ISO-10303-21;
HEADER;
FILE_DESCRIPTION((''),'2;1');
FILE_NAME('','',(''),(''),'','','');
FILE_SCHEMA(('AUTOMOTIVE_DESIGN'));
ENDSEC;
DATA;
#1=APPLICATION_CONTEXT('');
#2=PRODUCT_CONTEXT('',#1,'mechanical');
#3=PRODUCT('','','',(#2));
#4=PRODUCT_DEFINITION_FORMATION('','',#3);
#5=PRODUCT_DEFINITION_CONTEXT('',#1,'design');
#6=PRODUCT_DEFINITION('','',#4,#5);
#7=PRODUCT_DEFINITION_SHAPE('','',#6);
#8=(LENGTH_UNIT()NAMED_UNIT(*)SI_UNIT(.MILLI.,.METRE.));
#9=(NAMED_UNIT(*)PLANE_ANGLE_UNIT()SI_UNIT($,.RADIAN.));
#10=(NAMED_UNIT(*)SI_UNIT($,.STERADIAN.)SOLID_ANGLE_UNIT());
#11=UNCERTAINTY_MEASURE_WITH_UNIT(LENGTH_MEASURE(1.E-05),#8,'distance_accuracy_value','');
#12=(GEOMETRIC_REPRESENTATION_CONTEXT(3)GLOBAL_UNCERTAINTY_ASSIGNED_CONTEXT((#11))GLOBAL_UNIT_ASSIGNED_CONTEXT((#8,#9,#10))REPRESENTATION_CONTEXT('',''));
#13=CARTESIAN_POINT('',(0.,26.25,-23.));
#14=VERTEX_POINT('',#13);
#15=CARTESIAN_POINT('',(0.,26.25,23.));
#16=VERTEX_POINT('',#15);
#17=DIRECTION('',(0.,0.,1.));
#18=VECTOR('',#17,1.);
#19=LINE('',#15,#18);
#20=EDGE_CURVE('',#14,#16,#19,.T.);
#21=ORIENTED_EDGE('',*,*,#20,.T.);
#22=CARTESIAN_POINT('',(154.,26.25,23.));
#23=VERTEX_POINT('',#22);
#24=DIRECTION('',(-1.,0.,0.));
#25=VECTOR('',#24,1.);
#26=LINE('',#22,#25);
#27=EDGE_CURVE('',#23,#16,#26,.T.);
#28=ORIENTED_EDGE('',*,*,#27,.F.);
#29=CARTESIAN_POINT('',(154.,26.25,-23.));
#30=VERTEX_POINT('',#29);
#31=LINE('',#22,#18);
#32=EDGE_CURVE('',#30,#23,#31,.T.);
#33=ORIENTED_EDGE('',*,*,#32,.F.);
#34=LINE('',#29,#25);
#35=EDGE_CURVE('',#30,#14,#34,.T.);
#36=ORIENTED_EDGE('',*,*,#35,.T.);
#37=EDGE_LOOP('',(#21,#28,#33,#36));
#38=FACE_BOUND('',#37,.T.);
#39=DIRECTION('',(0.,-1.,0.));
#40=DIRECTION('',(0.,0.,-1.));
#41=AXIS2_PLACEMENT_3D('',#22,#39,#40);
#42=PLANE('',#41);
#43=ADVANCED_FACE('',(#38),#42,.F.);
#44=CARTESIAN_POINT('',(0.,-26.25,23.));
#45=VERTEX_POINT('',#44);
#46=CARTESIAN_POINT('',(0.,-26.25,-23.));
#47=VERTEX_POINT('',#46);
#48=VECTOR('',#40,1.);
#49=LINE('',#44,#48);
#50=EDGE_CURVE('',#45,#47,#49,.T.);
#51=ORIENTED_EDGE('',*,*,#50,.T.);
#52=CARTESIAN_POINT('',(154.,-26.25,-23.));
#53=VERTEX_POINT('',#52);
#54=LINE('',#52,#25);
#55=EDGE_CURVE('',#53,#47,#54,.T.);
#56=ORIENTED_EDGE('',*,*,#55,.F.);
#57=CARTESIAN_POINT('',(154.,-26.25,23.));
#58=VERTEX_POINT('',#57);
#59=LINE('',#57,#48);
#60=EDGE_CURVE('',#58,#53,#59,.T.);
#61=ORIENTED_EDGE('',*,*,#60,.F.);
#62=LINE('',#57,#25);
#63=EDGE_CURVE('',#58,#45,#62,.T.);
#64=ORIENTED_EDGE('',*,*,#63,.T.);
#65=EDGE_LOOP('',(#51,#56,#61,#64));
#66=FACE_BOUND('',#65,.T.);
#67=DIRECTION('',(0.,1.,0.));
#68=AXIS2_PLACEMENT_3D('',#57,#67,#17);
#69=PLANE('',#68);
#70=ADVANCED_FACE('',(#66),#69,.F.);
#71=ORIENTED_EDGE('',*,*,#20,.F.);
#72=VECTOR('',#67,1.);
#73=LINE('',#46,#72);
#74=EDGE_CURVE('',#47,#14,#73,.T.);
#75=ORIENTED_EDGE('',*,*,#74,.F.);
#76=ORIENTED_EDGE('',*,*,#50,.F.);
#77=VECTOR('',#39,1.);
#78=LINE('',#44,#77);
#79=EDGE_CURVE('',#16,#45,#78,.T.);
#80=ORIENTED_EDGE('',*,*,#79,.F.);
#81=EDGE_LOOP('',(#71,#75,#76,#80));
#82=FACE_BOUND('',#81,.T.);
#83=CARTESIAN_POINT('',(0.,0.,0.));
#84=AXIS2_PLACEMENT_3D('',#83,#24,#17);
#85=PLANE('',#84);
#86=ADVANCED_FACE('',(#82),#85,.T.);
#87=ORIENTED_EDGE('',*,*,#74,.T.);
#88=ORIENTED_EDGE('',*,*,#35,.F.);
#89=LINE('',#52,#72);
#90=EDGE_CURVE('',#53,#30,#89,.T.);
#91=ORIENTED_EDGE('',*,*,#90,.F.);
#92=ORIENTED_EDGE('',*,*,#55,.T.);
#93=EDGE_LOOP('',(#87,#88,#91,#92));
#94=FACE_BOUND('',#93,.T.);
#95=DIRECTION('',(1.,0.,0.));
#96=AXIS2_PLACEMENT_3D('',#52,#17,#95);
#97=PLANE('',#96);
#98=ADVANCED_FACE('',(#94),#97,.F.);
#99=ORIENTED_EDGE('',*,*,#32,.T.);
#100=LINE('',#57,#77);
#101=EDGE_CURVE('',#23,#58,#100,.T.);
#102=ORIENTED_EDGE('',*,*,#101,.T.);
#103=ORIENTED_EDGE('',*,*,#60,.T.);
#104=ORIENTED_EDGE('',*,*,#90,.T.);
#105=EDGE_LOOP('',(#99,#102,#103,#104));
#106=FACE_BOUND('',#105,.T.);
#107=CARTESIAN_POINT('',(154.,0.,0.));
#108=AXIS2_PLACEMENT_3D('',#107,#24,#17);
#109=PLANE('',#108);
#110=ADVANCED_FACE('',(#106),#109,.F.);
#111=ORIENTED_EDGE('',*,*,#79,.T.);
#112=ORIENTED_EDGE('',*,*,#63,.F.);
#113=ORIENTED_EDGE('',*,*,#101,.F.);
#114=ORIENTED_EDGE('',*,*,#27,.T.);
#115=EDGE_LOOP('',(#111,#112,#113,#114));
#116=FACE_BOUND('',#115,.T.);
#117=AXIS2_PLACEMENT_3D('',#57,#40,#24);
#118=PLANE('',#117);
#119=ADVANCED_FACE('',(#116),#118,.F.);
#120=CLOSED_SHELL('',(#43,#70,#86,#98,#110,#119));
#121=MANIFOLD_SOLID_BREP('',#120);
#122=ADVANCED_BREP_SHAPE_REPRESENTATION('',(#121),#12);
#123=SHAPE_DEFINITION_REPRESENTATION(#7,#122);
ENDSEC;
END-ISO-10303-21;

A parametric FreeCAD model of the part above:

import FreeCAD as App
import Part
import Sketcher

V = App.Vector

doc = App.newDocument("Part")
body = doc.addObject("PartDesign::Body", "Body")

# Sketch on YZ plane
sketch1 = doc.addObject("Sketcher::SketchObject", "Sketch")
body.addObject(sketch1)
sketch1.AttachmentSupport = (doc.YZ_Plane, [""])
sketch1.MapMode = "FlatFace"
sketch1.addGeometry([
    Part.LineSegment(V(26, 23, 0), V(-26, 23, 0)),
    Part.LineSegment(V(-26, 23, 0), V(-26, -23, 0)),
    Part.LineSegment(V(-26, -23, 0), V(26, -23, 0)),
    Part.LineSegment(V(26, -23, 0), V(26, 23, 0)),
], False)
sketch1.addConstraint([
    Sketcher.Constraint("Coincident", 0, 2, 1, 1),
    Sketcher.Constraint("Coincident", 1, 2, 2, 1),
    Sketcher.Constraint("Coincident", 2, 2, 3, 1),
    Sketcher.Constraint("Coincident", 3, 2, 0, 1),
    Sketcher.Constraint("Horizontal", 0),
    Sketcher.Constraint("Vertical", 1),
    Sketcher.Constraint("Horizontal", 2),
    Sketcher.Constraint("Vertical", 3),
    Sketcher.Constraint("Symmetric", 0, 2, 2, 2, -1, 1),
    Sketcher.Constraint("DistanceY", 1, 2, 1, 1, 46.0),
    Sketcher.Constraint("DistanceX", 0, 2, 0, 1, 52.5),
])
pad1 = doc.addObject("PartDesign::Pad", "Pad")
body.addObject(pad1)
pad1.Profile = sketch1
pad1.Length = 154

doc.recompute()
